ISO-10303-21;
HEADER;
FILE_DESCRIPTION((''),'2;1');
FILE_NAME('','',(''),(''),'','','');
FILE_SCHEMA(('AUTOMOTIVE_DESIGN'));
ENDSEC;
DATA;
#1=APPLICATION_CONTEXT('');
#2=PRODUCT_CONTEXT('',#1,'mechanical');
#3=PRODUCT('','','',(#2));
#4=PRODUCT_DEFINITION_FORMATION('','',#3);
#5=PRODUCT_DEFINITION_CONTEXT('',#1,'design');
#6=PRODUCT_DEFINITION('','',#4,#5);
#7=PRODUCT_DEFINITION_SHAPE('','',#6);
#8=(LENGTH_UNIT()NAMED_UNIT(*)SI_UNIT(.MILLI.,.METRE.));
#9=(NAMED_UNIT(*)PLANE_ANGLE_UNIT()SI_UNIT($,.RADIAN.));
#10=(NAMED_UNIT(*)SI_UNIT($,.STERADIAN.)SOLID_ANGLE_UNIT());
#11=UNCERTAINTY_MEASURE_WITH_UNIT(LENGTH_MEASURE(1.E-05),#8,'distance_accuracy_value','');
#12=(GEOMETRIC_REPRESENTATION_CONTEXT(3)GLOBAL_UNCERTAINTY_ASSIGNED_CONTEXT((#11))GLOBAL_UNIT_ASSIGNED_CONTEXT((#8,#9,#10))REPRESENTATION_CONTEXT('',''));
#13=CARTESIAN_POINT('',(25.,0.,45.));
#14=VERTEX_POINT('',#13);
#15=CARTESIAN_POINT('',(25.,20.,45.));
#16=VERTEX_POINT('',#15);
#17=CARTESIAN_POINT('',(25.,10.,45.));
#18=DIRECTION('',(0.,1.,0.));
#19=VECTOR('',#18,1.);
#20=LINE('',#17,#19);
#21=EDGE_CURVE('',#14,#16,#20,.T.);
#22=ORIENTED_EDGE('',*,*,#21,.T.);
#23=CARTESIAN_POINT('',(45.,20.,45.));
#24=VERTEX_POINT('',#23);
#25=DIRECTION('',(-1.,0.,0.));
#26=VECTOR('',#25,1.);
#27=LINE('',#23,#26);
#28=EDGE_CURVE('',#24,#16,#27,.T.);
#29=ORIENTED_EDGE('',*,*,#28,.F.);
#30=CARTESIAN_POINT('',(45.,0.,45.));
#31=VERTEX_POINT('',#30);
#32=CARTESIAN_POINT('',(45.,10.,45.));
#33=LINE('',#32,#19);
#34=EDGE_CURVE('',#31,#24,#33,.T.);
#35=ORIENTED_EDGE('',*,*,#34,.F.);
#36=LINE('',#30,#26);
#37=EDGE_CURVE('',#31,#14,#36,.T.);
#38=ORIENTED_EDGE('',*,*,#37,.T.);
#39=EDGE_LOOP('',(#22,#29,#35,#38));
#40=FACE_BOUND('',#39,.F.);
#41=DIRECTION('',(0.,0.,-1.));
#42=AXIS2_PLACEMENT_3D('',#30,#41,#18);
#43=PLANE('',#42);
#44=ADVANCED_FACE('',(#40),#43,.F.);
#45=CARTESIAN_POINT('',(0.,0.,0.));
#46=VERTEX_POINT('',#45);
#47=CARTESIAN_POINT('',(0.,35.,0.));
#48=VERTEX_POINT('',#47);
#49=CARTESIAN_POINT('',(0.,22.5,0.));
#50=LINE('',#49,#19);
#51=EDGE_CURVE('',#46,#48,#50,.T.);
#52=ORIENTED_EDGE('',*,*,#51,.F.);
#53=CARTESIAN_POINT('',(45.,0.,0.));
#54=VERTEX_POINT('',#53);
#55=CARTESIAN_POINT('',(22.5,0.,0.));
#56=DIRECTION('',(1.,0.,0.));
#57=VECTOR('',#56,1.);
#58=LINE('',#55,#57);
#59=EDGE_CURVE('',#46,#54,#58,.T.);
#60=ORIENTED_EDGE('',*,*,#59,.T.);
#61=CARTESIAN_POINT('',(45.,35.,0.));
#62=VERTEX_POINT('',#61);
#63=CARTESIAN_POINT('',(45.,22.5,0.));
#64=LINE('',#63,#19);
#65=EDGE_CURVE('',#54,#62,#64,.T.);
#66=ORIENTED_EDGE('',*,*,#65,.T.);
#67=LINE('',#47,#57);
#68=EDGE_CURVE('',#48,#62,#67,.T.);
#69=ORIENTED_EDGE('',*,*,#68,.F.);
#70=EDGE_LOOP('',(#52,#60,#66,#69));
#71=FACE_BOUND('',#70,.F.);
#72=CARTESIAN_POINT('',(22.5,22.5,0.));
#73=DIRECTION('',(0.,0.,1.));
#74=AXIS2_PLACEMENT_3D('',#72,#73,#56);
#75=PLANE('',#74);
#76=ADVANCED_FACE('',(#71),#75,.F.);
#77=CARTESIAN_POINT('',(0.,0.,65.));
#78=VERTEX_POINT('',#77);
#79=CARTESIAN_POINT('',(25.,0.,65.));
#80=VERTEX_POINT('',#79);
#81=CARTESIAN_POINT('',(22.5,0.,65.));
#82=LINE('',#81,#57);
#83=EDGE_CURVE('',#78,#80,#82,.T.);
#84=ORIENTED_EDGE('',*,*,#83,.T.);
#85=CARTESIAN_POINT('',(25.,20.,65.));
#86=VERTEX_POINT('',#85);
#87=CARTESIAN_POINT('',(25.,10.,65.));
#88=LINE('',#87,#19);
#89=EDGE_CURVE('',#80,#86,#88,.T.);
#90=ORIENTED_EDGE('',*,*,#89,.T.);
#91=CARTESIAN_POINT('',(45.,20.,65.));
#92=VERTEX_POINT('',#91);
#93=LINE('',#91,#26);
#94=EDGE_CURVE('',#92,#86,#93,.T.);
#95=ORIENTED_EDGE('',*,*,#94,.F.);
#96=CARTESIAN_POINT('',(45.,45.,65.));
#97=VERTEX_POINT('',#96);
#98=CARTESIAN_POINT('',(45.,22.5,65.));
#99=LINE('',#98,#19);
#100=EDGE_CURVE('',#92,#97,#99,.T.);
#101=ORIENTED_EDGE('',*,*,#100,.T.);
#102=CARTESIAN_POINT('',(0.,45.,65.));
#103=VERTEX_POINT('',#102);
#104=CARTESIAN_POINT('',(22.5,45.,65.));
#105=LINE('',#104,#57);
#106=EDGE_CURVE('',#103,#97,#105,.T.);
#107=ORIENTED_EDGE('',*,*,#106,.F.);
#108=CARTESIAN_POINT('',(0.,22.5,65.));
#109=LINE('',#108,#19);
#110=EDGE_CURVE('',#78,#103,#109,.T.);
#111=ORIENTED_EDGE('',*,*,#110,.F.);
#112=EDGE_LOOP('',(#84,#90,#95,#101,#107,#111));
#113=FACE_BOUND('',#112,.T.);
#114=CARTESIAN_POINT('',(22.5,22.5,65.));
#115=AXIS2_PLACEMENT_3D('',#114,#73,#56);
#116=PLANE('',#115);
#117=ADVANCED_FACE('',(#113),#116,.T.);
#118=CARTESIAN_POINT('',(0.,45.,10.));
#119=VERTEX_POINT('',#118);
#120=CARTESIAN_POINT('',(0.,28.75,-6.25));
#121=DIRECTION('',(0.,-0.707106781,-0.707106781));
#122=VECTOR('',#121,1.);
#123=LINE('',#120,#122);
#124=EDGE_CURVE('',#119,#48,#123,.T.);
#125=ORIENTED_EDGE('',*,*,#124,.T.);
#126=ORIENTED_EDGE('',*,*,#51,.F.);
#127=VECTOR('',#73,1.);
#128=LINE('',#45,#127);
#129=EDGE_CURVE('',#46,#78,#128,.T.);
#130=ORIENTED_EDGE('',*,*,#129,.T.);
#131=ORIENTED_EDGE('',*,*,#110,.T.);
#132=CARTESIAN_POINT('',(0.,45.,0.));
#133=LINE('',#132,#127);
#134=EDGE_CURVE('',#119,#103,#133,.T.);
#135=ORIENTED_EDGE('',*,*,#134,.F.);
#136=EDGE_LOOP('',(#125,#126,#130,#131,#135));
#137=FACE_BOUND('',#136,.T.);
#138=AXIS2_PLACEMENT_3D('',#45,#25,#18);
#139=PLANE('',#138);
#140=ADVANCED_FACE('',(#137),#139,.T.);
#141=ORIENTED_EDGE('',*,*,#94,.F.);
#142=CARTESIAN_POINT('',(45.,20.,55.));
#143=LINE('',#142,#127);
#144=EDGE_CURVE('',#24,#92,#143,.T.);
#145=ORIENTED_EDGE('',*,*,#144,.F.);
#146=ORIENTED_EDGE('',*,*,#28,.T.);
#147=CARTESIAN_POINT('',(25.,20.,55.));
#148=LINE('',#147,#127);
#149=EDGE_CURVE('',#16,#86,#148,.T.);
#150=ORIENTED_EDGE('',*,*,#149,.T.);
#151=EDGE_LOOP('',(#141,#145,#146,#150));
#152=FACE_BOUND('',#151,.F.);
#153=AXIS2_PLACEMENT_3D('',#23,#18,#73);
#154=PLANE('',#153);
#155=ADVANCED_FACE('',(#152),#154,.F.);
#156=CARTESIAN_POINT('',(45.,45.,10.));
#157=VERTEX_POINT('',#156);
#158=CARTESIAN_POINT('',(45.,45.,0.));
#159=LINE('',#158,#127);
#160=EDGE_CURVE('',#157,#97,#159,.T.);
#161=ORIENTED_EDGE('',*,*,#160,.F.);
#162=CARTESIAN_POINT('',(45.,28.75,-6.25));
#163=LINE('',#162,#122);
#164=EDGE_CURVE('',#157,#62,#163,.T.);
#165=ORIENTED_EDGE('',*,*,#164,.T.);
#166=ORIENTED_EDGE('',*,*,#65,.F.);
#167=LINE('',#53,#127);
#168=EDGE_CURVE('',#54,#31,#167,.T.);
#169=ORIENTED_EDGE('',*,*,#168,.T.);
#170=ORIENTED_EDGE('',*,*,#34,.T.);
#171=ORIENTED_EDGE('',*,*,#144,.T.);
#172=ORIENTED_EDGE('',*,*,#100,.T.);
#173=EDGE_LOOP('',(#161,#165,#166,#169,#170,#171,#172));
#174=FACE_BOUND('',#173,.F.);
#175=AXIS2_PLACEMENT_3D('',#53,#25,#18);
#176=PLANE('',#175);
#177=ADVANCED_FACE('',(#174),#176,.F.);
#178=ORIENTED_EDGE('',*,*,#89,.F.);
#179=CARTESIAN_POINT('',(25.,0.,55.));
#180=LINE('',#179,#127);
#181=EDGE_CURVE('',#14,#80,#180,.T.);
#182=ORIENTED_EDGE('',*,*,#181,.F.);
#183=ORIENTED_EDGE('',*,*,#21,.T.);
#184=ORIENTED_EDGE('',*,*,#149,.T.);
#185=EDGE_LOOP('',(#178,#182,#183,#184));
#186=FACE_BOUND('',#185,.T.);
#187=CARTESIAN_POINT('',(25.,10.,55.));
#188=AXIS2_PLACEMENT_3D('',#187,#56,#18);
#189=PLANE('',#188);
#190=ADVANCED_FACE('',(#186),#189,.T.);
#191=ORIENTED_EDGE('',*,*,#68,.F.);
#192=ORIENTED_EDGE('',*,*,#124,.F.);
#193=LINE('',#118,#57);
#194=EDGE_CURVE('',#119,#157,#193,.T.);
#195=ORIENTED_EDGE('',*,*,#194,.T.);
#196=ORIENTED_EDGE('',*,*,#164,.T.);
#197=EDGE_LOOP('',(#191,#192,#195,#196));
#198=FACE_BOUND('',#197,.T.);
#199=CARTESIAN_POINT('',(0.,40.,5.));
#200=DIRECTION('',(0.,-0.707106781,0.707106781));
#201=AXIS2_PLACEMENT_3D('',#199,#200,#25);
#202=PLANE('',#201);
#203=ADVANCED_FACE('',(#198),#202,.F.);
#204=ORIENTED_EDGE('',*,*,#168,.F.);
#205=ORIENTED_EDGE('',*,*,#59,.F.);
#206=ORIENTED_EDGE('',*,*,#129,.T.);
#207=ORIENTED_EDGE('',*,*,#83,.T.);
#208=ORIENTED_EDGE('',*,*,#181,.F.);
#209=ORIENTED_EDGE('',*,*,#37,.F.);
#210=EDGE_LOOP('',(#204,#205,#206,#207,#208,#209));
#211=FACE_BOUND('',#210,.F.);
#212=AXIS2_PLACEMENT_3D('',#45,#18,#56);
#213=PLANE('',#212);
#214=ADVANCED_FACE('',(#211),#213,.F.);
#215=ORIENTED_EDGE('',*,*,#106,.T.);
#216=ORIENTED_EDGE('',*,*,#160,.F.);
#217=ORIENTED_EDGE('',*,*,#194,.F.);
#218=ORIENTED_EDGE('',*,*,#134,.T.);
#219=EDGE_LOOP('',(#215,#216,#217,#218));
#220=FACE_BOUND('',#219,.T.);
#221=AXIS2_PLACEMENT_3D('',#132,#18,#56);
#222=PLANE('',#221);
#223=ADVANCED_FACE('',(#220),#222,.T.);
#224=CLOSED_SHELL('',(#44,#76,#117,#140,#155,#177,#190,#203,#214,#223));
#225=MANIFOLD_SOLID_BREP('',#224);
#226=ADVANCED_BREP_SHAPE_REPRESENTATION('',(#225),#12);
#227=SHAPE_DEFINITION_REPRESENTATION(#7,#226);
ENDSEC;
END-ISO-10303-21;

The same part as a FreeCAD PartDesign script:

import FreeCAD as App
import Part
import Sketcher
Q = App.Units.Quantity


def edges_at(feature, points):
    """Names of the edges that pass closest to the given points."""
    edges = feature.Shape.Edges
    near = lambda p: min(range(len(edges)), key=lambda i: edges[i].distToShape(Part.Vertex(*p))[0])
    return sorted({f"Edge{near(p) + 1}" for p in points})

doc = App.newDocument("Part")
body = doc.addObject("PartDesign::Body", "Body")

# Sketch on XY plane
sketch1 = body.newObject("Sketcher::SketchObject", "Sketch")
sketch1.AttachmentSupport = (doc.getObject("XY_Plane"), [""])
sketch1.MapMode = "FlatFace"
sketch1.addGeometry([
    Part.LineSegment(App.Vector(0, 45, 0), App.Vector(0, 0, 0)),
    Part.LineSegment(App.Vector(0, 0, 0), App.Vector(45, 0, 0)),
    Part.LineSegment(App.Vector(45, 0, 0), App.Vector(45, 45, 0)),
    Part.LineSegment(App.Vector(45, 45, 0), App.Vector(0, 45, 0)),
], False)
sketch1.addConstraint([
    Sketcher.Constraint("Coincident", 0, 2, 1, 1),
    Sketcher.Constraint("Coincident", 1, 2, 2, 1),
    Sketcher.Constraint("Coincident", 2, 2, 3, 1),
    Sketcher.Constraint("Coincident", 3, 2, 0, 1),
    Sketcher.Constraint("Vertical", 0),
    Sketcher.Constraint("Horizontal", 1),
    Sketcher.Constraint("Vertical", 2),
    Sketcher.Constraint("Horizontal", 3),
    Sketcher.Constraint("Coincident", 0, 2, -1, 1),
    Sketcher.Constraint("Equal", 3, 0),
    Sketcher.Constraint("DistanceX", 1, 1, 1, 2, Q("45 mm")),
])
pad1 = body.newObject("PartDesign::Pad", "Pad")
pad1.Profile = sketch1
pad1.Length = 65

# Sketch on YZ plane
sketch2 = body.newObject("Sketcher::SketchObject", "Sketch001")
sketch2.AttachmentSupport = (doc.getObject("YZ_Plane"), [""])
sketch2.MapMode = "FlatFace"
sketch2.AttachmentOffset = App.Placement(App.Vector(0, 0, 45), App.Rotation())
sketch2.addGeometry([
    Part.LineSegment(App.Vector(0, 65, 0), App.Vector(0, 45, 0)),
    Part.LineSegment(App.Vector(0, 45, 0), App.Vector(20, 45, 0)),
    Part.LineSegment(App.Vector(20, 45, 0), App.Vector(20, 65, 0)),
    Part.LineSegment(App.Vector(20, 65, 0), App.Vector(0, 65, 0)),
], False)
sketch2.addConstraint([
    Sketcher.Constraint("Coincident", 0, 2, 1, 1),
    Sketcher.Constraint("Coincident", 1, 2, 2, 1),
    Sketcher.Constraint("Coincident", 2, 2, 3, 1),
    Sketcher.Constraint("Coincident", 3, 2, 0, 1),
    Sketcher.Constraint("Vertical", 0),
    Sketcher.Constraint("Horizontal", 1),
    Sketcher.Constraint("Vertical", 2),
    Sketcher.Constraint("Horizontal", 3),
    Sketcher.Constraint("PointOnObject", 0, 2, -2),
    Sketcher.Constraint("Equal", 3, 0),
    Sketcher.Constraint("DistanceX", 1, 1, 1, 2, Q("20 mm")),
    Sketcher.Constraint("DistanceY", -1, 1, 0, 2, Q("45 mm")),
])
pocket1 = body.newObject("PartDesign::Pocket", "Pocket")
pocket1.Profile = sketch2
pocket1.Length = 20
doc.recompute()

chamfer = body.newObject("PartDesign::Chamfer", "Chamfer")
chamfer.Base = (pocket1, edges_at(pocket1, [(22.5, 45, 0)]))
chamfer.Size = 10

doc.recompute()
